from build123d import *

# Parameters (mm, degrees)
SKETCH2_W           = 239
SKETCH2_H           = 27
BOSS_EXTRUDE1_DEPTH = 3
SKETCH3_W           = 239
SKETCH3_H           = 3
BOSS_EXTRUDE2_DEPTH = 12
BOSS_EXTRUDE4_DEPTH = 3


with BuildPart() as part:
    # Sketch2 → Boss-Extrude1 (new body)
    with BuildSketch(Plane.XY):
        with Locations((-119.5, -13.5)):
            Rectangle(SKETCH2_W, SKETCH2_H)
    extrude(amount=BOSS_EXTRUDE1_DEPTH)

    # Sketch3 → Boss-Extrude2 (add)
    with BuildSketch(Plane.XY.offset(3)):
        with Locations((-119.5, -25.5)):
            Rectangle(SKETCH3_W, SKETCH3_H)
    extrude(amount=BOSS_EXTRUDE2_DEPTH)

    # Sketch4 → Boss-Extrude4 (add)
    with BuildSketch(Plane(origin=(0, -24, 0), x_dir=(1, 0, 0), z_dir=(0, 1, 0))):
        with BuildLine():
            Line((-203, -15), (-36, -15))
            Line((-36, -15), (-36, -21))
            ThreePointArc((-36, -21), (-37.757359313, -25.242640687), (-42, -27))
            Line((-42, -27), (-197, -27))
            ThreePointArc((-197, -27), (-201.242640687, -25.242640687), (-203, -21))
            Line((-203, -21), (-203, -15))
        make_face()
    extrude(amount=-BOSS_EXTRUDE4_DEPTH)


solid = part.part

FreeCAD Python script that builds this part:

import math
import FreeCAD as App
import Part
import Sketcher
from FreeCAD import Vector
Q = App.Units.Quantity


def add_polygon(sketch, points):
    """Adds a closed chain of lines whose ends are joined by coincident constraints."""
    first, n = sketch.GeometryCount, len(points)
    for a, b in zip(points, points[1:] + points[:1]):
        sketch.addGeometry(Part.LineSegment(App.Vector(*a, 0), App.Vector(*b, 0)), False)
    for i in range(n):
        sketch.addConstraint(Sketcher.Constraint("Coincident", first + i, 2, first + (i + 1) % n, 1))

doc = App.newDocument("Part")
body = doc.addObject("PartDesign::Body", "Body")

# Sketch on XY plane
sketch1 = body.newObject("Sketcher::SketchObject", "Sketch")
sketch1.AttachmentSupport = (doc.getObject("XY_Plane"), [""])
sketch1.MapMode = "FlatFace"
add_polygon(sketch1, [(-239, 0), (-239, -27), (0, -27), (0, 0)])  # lines 0-3
sketch1.addConstraint([
    Sketcher.Constraint("Vertical", 0),
    Sketcher.Constraint("Horizontal", 1),
    Sketcher.Constraint("Vertical", 2),
    Sketcher.Constraint("Horizontal", 3),
    Sketcher.Constraint("Coincident", 2, 2, -1, 1),
    Sketcher.Constraint("DistanceX", 1, 1, 1, 2, Q("239 mm")),
    Sketcher.Constraint("DistanceY", 0, 2, 0, 1, Q("27 mm")),
])
pad1 = body.newObject("PartDesign::Pad", "Pad")
pad1.Profile = sketch1
pad1.Length = 3

# Sketch on XY plane
sketch2 = body.newObject("Sketcher::SketchObject", "Sketch001")
sketch2.AttachmentSupport = (doc.getObject("XY_Plane"), [""])
sketch2.MapMode = "FlatFace"
sketch2.AttachmentOffset = App.Placement(Vector(0, 0, 3), App.Rotation())
add_polygon(sketch2, [(-239, -24), (-239, -27), (0, -27), (0, -24)])  # lines 0-3
sketch2.addConstraint([
    Sketcher.Constraint("Vertical", 0),
    Sketcher.Constraint("Horizontal", 1),
    Sketcher.Constraint("Vertical", 2),
    Sketcher.Constraint("Horizontal", 3),
    Sketcher.Constraint("PointOnObject", 1, 2, -2),
    Sketcher.Constraint("DistanceX", 1, 1, 1, 2, Q("239 mm")),
    Sketcher.Constraint("DistanceY", 0, 2, 0, 1, Q("3 mm")),
    Sketcher.Constraint("DistanceY", 0, 2, -1, 1, Q("27 mm")),
])
pad2 = body.newObject("PartDesign::Pad", "Pad001")
pad2.Profile = sketch2
pad2.Length = 12

# Sketch on XZ plane
sketch3 = body.newObject("Sketcher::SketchObject", "Sketch002")
sketch3.AttachmentSupport = (doc.getObject("XZ_Plane"), [""])
sketch3.MapMode = "FlatFace"
sketch3.AttachmentOffset = App.Placement(Vector(0, 0, 24), App.Rotation())
sketch3.addGeometry([
    Part.LineSegment(Vector(-36, 15, 0), Vector(-203, 15, 0)),  # 0
    Part.LineSegment(Vector(-203, 15, 0), Vector(-203, 21, 0)),  # 1
    Part.ArcOfCircle(Part.Circle(Vector(-197, 21, 0), Vector(0, 0, 1), 6), math.radians(90), math.radians(180)),  # 2
    Part.LineSegment(Vector(-197, 27, 0), Vector(-42, 27, 0)),  # 3
    Part.ArcOfCircle(Part.Circle(Vector(-42, 21, 0), Vector(0, 0, 1), 6), math.radians(0), math.radians(90)),  # 4
    Part.LineSegment(Vector(-36, 21, 0), Vector(-36, 15, 0)),  # 5
], False)
sketch3.addConstraint([
    Sketcher.Constraint("Coincident", 0, 2, 1, 1),
    Sketcher.Constraint("Tangent", 1, 2, 2, 2),
    Sketcher.Constraint("Tangent", 2, 1, 3, 1),
    Sketcher.Constraint("Tangent", 3, 2, 4, 2),
    Sketcher.Constraint("Tangent", 4, 1, 5, 1),
    Sketcher.Constraint("Coincident", 5, 2, 0, 1),
    Sketcher.Constraint("Horizontal", 0),
    Sketcher.Constraint("Vertical", 1),
    Sketcher.Constraint("Horizontal", 3),
    Sketcher.Constraint("Vertical", 5),
    Sketcher.Constraint("Equal", 2, 4),
    Sketcher.Constraint("Radius", 2, Q("6 mm")),
    Sketcher.Constraint("DistanceX", 0, 2, 0, 1, Q("167 mm")),
    Sketcher.Constraint("DistanceY", 1, 1, 1, 2, Q("6 mm")),
    Sketcher.Constraint("DistanceX", 2, 3, -1, 1, Q("197 mm")),
    Sketcher.Constraint("DistanceY", -1, 1, 2, 3, Q("21 mm")),
])
pad3 = body.newObject("PartDesign::Pad", "Pad002")
pad3.Profile = sketch3
pad3.Length = 3

doc.recompute()
